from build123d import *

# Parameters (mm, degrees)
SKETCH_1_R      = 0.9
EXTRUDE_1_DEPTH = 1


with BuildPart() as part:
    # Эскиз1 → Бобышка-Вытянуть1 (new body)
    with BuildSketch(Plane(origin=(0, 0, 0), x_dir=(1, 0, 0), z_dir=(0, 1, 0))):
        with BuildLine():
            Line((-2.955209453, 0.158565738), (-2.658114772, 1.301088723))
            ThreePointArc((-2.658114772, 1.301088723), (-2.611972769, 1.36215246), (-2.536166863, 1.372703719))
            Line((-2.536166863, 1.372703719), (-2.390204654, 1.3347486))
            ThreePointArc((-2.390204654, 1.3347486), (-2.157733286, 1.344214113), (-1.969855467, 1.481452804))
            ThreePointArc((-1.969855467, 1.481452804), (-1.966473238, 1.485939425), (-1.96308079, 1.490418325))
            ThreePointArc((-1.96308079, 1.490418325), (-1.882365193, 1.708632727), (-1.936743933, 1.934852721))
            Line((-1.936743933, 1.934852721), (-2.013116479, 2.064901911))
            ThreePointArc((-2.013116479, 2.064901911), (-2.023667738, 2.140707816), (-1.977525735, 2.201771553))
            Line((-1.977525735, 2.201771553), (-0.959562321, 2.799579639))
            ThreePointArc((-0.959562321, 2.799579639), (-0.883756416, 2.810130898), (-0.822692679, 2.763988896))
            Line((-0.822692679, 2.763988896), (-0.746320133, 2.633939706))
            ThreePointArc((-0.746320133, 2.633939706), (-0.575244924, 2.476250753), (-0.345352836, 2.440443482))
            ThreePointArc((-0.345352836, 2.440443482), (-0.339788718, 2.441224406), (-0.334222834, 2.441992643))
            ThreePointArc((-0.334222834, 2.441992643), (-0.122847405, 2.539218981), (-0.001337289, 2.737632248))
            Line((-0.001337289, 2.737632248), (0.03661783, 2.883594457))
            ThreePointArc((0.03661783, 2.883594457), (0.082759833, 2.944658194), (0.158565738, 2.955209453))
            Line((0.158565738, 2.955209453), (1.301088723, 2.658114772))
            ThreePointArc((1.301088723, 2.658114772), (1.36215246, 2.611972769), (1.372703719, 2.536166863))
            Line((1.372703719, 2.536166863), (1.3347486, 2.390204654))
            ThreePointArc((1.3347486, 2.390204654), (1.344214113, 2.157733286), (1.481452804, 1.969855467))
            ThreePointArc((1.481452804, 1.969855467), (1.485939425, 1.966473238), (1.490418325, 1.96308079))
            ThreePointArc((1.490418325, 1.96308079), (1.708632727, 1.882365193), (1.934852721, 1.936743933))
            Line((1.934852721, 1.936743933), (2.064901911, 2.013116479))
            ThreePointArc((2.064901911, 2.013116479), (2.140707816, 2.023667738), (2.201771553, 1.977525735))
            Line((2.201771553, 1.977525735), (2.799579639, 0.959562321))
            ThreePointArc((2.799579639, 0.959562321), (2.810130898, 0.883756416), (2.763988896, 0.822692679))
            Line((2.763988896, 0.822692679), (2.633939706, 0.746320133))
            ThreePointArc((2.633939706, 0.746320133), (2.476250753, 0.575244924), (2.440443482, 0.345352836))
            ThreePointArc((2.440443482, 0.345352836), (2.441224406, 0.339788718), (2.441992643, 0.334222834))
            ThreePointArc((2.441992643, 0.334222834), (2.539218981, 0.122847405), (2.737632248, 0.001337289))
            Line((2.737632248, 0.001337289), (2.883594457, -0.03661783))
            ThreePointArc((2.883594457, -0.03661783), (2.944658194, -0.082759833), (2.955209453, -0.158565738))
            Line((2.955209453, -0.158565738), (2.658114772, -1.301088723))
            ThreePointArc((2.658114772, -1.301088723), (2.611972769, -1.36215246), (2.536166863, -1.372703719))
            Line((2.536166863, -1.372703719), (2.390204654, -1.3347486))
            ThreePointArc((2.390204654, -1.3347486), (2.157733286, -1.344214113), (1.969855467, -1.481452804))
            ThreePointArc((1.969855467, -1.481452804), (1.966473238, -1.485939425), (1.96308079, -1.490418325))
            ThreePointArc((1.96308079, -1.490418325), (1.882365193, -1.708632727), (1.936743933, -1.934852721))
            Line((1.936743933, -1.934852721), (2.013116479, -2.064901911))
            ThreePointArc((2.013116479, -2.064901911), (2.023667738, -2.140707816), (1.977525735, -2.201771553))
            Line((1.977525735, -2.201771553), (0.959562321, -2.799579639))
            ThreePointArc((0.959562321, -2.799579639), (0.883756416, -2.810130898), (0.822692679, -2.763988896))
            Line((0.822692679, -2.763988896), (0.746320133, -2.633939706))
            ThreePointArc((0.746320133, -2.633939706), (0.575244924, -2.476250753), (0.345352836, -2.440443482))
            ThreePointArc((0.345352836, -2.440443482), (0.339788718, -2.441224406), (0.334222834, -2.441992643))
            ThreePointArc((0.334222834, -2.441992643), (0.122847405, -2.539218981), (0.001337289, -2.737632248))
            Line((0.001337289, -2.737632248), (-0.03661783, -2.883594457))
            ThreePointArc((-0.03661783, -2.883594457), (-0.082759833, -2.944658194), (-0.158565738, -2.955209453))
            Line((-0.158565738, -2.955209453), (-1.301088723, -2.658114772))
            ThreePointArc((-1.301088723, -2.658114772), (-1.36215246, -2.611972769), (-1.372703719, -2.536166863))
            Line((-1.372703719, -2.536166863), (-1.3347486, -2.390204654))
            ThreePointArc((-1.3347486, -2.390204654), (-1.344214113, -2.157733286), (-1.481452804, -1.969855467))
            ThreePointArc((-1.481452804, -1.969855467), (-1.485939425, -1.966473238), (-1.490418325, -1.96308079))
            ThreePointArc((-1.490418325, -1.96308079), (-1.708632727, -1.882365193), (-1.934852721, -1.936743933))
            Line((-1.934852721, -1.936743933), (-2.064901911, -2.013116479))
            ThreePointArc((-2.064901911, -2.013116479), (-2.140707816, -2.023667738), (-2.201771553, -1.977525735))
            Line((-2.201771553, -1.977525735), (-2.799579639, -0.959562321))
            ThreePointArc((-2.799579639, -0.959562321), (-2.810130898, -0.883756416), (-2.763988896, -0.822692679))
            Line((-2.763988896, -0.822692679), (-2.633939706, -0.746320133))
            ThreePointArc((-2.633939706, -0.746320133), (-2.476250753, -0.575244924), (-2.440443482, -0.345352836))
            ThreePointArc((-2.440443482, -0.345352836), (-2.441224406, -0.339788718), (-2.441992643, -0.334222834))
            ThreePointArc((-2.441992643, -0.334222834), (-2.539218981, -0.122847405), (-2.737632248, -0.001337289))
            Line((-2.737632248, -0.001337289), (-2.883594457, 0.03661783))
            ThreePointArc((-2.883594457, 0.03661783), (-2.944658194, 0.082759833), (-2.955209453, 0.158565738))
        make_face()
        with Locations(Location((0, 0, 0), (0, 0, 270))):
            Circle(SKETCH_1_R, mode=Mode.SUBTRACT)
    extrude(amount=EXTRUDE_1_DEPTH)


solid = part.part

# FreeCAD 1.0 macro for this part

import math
import FreeCAD as App
import Part
import Sketcher

doc = App.newDocument("Part")
body = doc.addObject("PartDesign::Body", "Body")

sketch1 = body.newObject("Sketcher::SketchObject", "Sketch")
sketch1.AttachmentSupport = (doc.getObject("XZ_Plane"), [""])
sketch1.MapMode = "FlatFace"
sketch1.addGeometry(Part.LineSegment(App.Vector(-2.658, -1.301, 0), App.Vector(-2.955, -0.159, 0)), False)
sketch1.addGeometry(Part.ArcOfCircle(Part.Circle(App.Vector(-2.858, -0.133, 0), App.Vector(0, 0, 1), 0.1), math.radians(105), math.radians(195)), False)
sketch1.addGeometry(Part.LineSegment(App.Vector(-2.884, -0.037, 0), App.Vector(-2.738, 0.001, 0)), False)
sketch1.addGeometry(Part.ArcOfCircle(Part.Circle(App.Vector(-2.838, 0.388, 0), App.Vector(0, 0, 1), 0.4), math.radians(-75), math.radians(-8)), False)
sketch1.addGeometry(Part.ArcOfCircle(Part.Circle(App.Vector(0, 0, 0), App.Vector(0, 0, 1), 2.465), math.radians(171.95), math.radians(172.21)), False)
sketch1.addGeometry(Part.ArcOfCircle(Part.Circle(App.Vector(-2.836, 0.401, 0), App.Vector(0, 0, 1), 0.4), math.radians(-8), math.radians(60)), False)
sketch1.addGeometry(Part.LineSegment(App.Vector(-2.634, 0.746, 0), App.Vector(-2.764, 0.823, 0)), False)
sketch1.addGeometry(Part.ArcOfCircle(Part.Circle(App.Vector(-2.713, 0.909, 0), App.Vector(0, 0, 1), 0.1), math.radians(150), math.radians(240)), False)
sketch1.addGeometry(Part.LineSegment(App.Vector(-2.8, 0.96, 0), App.Vector(-2.202, 1.978, 0)), False)
sketch1.addGeometry(Part.ArcOfCircle(Part.Circle(App.Vector(-2.116, 1.927, 0), App.Vector(0, 0, 1), 0.1), math.radians(60), math.radians(150)), False)
sketch1.addGeometry(Part.LineSegment(App.Vector(-2.065, 2.013, 0), App.Vector(-1.935, 1.937, 0)), False)
sketch1.addGeometry(Part.ArcOfCircle(Part.Circle(App.Vector(-1.732, 2.282, 0), App.Vector(0, 0, 1), 0.4), math.radians(-120), math.radians(-53)), False)
sketch1.addGeometry(Part.ArcOfCircle(Part.Circle(App.Vector(0, 0, 0), App.Vector(0, 0, 1), 2.465), math.radians(126.95), math.radians(127.21)), False)
sketch1.addGeometry(Part.ArcOfCircle(Part.Circle(App.Vector(-1.722, 2.29, 0), App.Vector(0, 0, 1), 0.4), math.radians(-53), math.radians(15)), False)
sketch1.addGeometry(Part.LineSegment(App.Vector(-1.335, 2.39, 0), App.Vector(-1.373, 2.536, 0)), False)
sketch1.addGeometry(Part.ArcOfCircle(Part.Circle(App.Vector(-1.276, 2.561, 0), App.Vector(0, 0, 1), 0.1), math.radians(105), math.radians(195)), False)
sketch1.addGeometry(Part.LineSegment(App.Vector(-1.301, 2.658, 0), App.Vector(-0.159, 2.955, 0)), False)
sketch1.addGeometry(Part.ArcOfCircle(Part.Circle(App.Vector(-0.133, 2.858, 0), App.Vector(0, 0, 1), 0.1), math.radians(15), math.radians(105)), False)
sketch1.addGeometry(Part.LineSegment(App.Vector(-0.037, 2.884, 0), App.Vector(0.001, 2.738, 0)), False)
sketch1.addGeometry(Part.ArcOfCircle(Part.Circle(App.Vector(0.388, 2.838, 0), App.Vector(0, 0, 1), 0.4), math.radians(-165), math.radians(-98)), False)
sketch1.addGeometry(Part.ArcOfCircle(Part.Circle(App.Vector(0, 0, 0), App.Vector(0, 0, 1), 2.465), math.radians(81.95), math.radians(82.21)), False)
sketch1.addGeometry(Part.ArcOfCircle(Part.Circle(App.Vector(0.401, 2.836, 0), App.Vector(0, 0, 1), 0.4), math.radians(-98), math.radians(-30)), False)
sketch1.addGeometry(Part.LineSegment(App.Vector(0.746, 2.634, 0), App.Vector(0.823, 2.764, 0)), False)
sketch1.addGeometry(Part.ArcOfCircle(Part.Circle(App.Vector(0.909, 2.713, 0), App.Vector(0, 0, 1), 0.1), math.radians(60), math.radians(150)), False)
sketch1.addGeometry(Part.LineSegment(App.Vector(0.96, 2.8, 0), App.Vector(1.978, 2.202, 0)), False)
sketch1.addGeometry(Part.ArcOfCircle(Part.Circle(App.Vector(1.927, 2.116, 0), App.Vector(0, 0, 1), 0.1), math.radians(-30), math.radians(60)), False)
sketch1.addGeometry(Part.LineSegment(App.Vector(2.013, 2.065, 0), App.Vector(1.937, 1.935, 0)), False)
sketch1.addGeometry(Part.ArcOfCircle(Part.Circle(App.Vector(2.282, 1.732, 0), App.Vector(0, 0, 1), 0.4), math.radians(150), math.radians(217)), False)
sketch1.addGeometry(Part.ArcOfCircle(Part.Circle(App.Vector(0, 0, 0), App.Vector(0, 0, 1), 2.465), math.radians(36.95), math.radians(37.21)), False)
sketch1.addGeometry(Part.ArcOfCircle(Part.Circle(App.Vector(2.29, 1.722, 0), App.Vector(0, 0, 1), 0.4), math.radians(-143), math.radians(-75)), False)
sketch1.addGeometry(Part.LineSegment(App.Vector(2.39, 1.335, 0), App.Vector(2.536, 1.373, 0)), False)
sketch1.addGeometry(Part.ArcOfCircle(Part.Circle(App.Vector(2.561, 1.276, 0), App.Vector(0, 0, 1), 0.1), math.radians(15), math.radians(105)), False)
sketch1.addGeometry(Part.LineSegment(App.Vector(2.658, 1.301, 0), App.Vector(2.955, 0.159, 0)), False)
sketch1.addGeometry(Part.ArcOfCircle(Part.Circle(App.Vector(2.858, 0.133, 0), App.Vector(0, 0, 1), 0.1), math.radians(-75), math.radians(15)), False)
sketch1.addGeometry(Part.LineSegment(App.Vector(2.884, 0.037, 0), App.Vector(2.738, -0.001, 0)), False)
sketch1.addGeometry(Part.ArcOfCircle(Part.Circle(App.Vector(2.838, -0.388, 0), App.Vector(0, 0, 1), 0.4), math.radians(105), math.radians(172)), False)
sketch1.addGeometry(Part.ArcOfCircle(Part.Circle(App.Vector(0, 0, 0), App.Vector(0, 0, 1), 2.465), math.radians(-8.05), math.radians(-7.79)), False)
sketch1.addGeometry(Part.ArcOfCircle(Part.Circle(App.Vector(2.836, -0.401, 0), App.Vector(0, 0, 1), 0.4), math.radians(172), math.radians(240)), False)
sketch1.addGeometry(Part.LineSegment(App.Vector(2.634, -0.746, 0), App.Vector(2.764, -0.823, 0)), False)
sketch1.addGeometry(Part.ArcOfCircle(Part.Circle(App.Vector(2.713, -0.909, 0), App.Vector(0, 0, 1), 0.1), math.radians(-30), math.radians(60)), False)
sketch1.addGeometry(Part.LineSegment(App.Vector(2.8, -0.96, 0), App.Vector(2.202, -1.978, 0)), False)
sketch1.addGeometry(Part.ArcOfCircle(Part.Circle(App.Vector(2.116, -1.927, 0), App.Vector(0, 0, 1), 0.1), math.radians(-120), math.radians(-30)), False)
sketch1.addGeometry(Part.LineSegment(App.Vector(2.065, -2.013, 0), App.Vector(1.935, -1.937, 0)), False)
sketch1.addGeometry(Part.ArcOfCircle(Part.Circle(App.Vector(1.732, -2.282, 0), App.Vector(0, 0, 1), 0.4), math.radians(60), math.radians(127)), False)
sketch1.addGeometry(Part.ArcOfCircle(Part.Circle(App.Vector(0, 0, 0), App.Vector(0, 0, 1), 2.465), math.radians(-53.05), math.radians(-52.79)), False)
sketch1.addGeometry(Part.ArcOfCircle(Part.Circle(App.Vector(1.722, -2.29, 0), App.Vector(0, 0, 1), 0.4), math.radians(127), math.radians(195)), False)
sketch1.addGeometry(Part.LineSegment(App.Vector(1.335, -2.39, 0), App.Vector(1.373, -2.536, 0)), False)
sketch1.addGeometry(Part.ArcOfCircle(Part.Circle(App.Vector(1.276, -2.561, 0), App.Vector(0, 0, 1), 0.1), math.radians(-75), math.radians(15)), False)
sketch1.addGeometry(Part.LineSegment(App.Vector(1.301, -2.658, 0), App.Vector(0.159, -2.955, 0)), False)
sketch1.addGeometry(Part.ArcOfCircle(Part.Circle(App.Vector(0.133, -2.858, 0), App.Vector(0, 0, 1), 0.1), math.radians(-165), math.radians(-75)), False)
sketch1.addGeometry(Part.LineSegment(App.Vector(0.037, -2.884, 0), App.Vector(-0.001, -2.738, 0)), False)
sketch1.addGeometry(Part.ArcOfCircle(Part.Circle(App.Vector(-0.388, -2.838, 0), App.Vector(0, 0, 1), 0.4), math.radians(15), math.radians(82)), False)
sketch1.addGeometry(Part.ArcOfCircle(Part.Circle(App.Vector(0, 0, 0), App.Vector(0, 0, 1), 2.465), math.radians(-98.05), math.radians(-97.79)), False)
sketch1.addGeometry(Part.ArcOfCircle(Part.Circle(App.Vector(-0.401, -2.836, 0), App.Vector(0, 0, 1), 0.4), math.radians(82), math.radians(150)), False)
sketch1.addGeometry(Part.LineSegment(App.Vector(-0.746, -2.634, 0), App.Vector(-0.823, -2.764, 0)), False)
sketch1.addGeometry(Part.ArcOfCircle(Part.Circle(App.Vector(-0.909, -2.713, 0), App.Vector(0, 0, 1), 0.1), math.radians(-120), math.radians(-30)), False)
sketch1.addGeometry(Part.LineSegment(App.Vector(-0.96, -2.8, 0), App.Vector(-1.978, -2.202, 0)), False)
sketch1.addGeometry(Part.ArcOfCircle(Part.Circle(App.Vector(-1.927, -2.116, 0), App.Vector(0, 0, 1), 0.1), math.radians(150), math.radians(240)), False)
sketch1.addGeometry(Part.LineSegment(App.Vector(-2.013, -2.065, 0), App.Vector(-1.937, -1.935, 0)), False)
sketch1.addGeometry(Part.ArcOfCircle(Part.Circle(App.Vector(-2.282, -1.732, 0), App.Vector(0, 0, 1), 0.4), math.radians(-30), math.radians(37)), False)
sketch1.addGeometry(Part.ArcOfCircle(Part.Circle(App.Vector(0, 0, 0), App.Vector(0, 0, 1), 2.465), math.radians(-143.05), math.radians(-142.79)), False)
sketch1.addGeometry(Part.ArcOfCircle(Part.Circle(App.Vector(-2.29, -1.722, 0), App.Vector(0, 0, 1), 0.4), math.radians(37), math.radians(105)), False)
sketch1.addGeometry(Part.LineSegment(App.Vector(-2.39, -1.335, 0), App.Vector(-2.536, -1.373, 0)), False)
sketch1.addGeometry(Part.ArcOfCircle(Part.Circle(App.Vector(-2.561, -1.276, 0), App.Vector(0, 0, 1), 0.1), math.radians(-165), math.radians(-75)), False)
sketch1.addGeometry(Part.Circle(App.Vector(0, 0, 0), App.Vector(0, 0, 1), 0.9), False)
sketch1.addConstraint(Sketcher.Constraint("Tangent", 0, 2, 1, 2))
sketch1.addConstraint(Sketcher.Constraint("Tangent", 1, 1, 2, 1))
sketch1.addConstraint(Sketcher.Constraint("Tangent", 2, 2, 3, 1))
sketch1.addConstraint(Sketcher.Constraint("Tangent", 3, 2, 4, 2))
sketch1.addConstraint(Sketcher.Constraint("Tangent", 4, 1, 5, 1))
sketch1.addConstraint(Sketcher.Constraint("Tangent", 5, 2, 6, 1))
sketch1.addConstraint(Sketcher.Constraint("Tangent", 6, 2, 7, 2))
sketch1.addConstraint(Sketcher.Constraint("Tangent", 7, 1, 8, 1))
sketch1.addConstraint(Sketcher.Constraint("Tangent", 8, 2, 9, 2))
sketch1.addConstraint(Sketcher.Constraint("Tangent", 9, 1, 10, 1))
sketch1.addConstraint(Sketcher.Constraint("Tangent", 10, 2, 11, 1))
sketch1.addConstraint(Sketcher.Constraint("Tangent", 11, 2, 12, 2))
sketch1.addConstraint(Sketcher.Constraint("Tangent", 12, 1, 13, 1))
sketch1.addConstraint(Sketcher.Constraint("Tangent", 13, 2, 14, 1))
sketch1.addConstraint(Sketcher.Constraint("Tangent", 14, 2, 15, 2))
sketch1.addConstraint(Sketcher.Constraint("Tangent", 15, 1, 16, 1))
sketch1.addConstraint(Sketcher.Constraint("Tangent", 16, 2, 17, 2))
sketch1.addConstraint(Sketcher.Constraint("Tangent", 17, 1, 18, 1))
sketch1.addConstraint(Sketcher.Constraint("Tangent", 18, 2, 19, 1))
sketch1.addConstraint(Sketcher.Constraint("Tangent", 19, 2, 20, 2))
sketch1.addConstraint(Sketcher.Constraint("Tangent", 20, 1, 21, 1))
sketch1.addConstraint(Sketcher.Constraint("Tangent", 21, 2, 22, 1))
sketch1.addConstraint(Sketcher.Constraint("Tangent", 22, 2, 23, 2))
sketch1.addConstraint(Sketcher.Constraint("Tangent", 23, 1, 24, 1))
sketch1.addConstraint(Sketcher.Constraint("Tangent", 24, 2, 25, 2))
sketch1.addConstraint(Sketcher.Constraint("Tangent", 25, 1, 26, 1))
sketch1.addConstraint(Sketcher.Constraint("Tangent", 26, 2, 27, 1))
sketch1.addConstraint(Sketcher.Constraint("Tangent", 27, 2, 28, 2))
sketch1.addConstraint(Sketcher.Constraint("Tangent", 28, 1, 29, 1))
sketch1.addConstraint(Sketcher.Constraint("Tangent", 29, 2, 30, 1))
sketch1.addConstraint(Sketcher.Constraint("Tangent", 30, 2, 31, 2))
sketch1.addConstraint(Sketcher.Constraint("Tangent", 31, 1, 32, 1))
sketch1.addConstraint(Sketcher.Constraint("Tangent", 32, 2, 33, 2))
sketch1.addConstraint(Sketcher.Constraint("Tangent", 33, 1, 34, 1))
sketch1.addConstraint(Sketcher.Constraint("Tangent", 34, 2, 35, 1))
sketch1.addConstraint(Sketcher.Constraint("Tangent", 35, 2, 36, 2))
sketch1.addConstraint(Sketcher.Constraint("Tangent", 36, 1, 37, 1))
sketch1.addConstraint(Sketcher.Constraint("Tangent", 37, 2, 38, 1))
sketch1.addConstraint(Sketcher.Constraint("Tangent", 38, 2, 39, 2))
sketch1.addConstraint(Sketcher.Constraint("Tangent", 39, 1, 40, 1))
sketch1.addConstraint(Sketcher.Constraint("Tangent", 40, 2, 41, 2))
sketch1.addConstraint(Sketcher.Constraint("Tangent", 41, 1, 42, 1))
sketch1.addConstraint(Sketcher.Constraint("Tangent", 42, 2, 43, 1))
sketch1.addConstraint(Sketcher.Constraint("Tangent", 43, 2, 44, 2))
sketch1.addConstraint(Sketcher.Constraint("Tangent", 44, 1, 45, 1))
sketch1.addConstraint(Sketcher.Constraint("Tangent", 45, 2, 46, 1))
sketch1.addConstraint(Sketcher.Constraint("Tangent", 46, 2, 47, 2))
sketch1.addConstraint(Sketcher.Constraint("Tangent", 47, 1, 48, 1))
sketch1.addConstraint(Sketcher.Constraint("Tangent", 48, 2, 49, 2))
sketch1.addConstraint(Sketcher.Constraint("Tangent", 49, 1, 50, 1))
sketch1.addConstraint(Sketcher.Constraint("Tangent", 50, 2, 51, 1))
sketch1.addConstraint(Sketcher.Constraint("Tangent", 51, 2, 52, 2))
sketch1.addConstraint(Sketcher.Constraint("Tangent", 52, 1, 53, 1))
sketch1.addConstraint(Sketcher.Constraint("Tangent", 53, 2, 54, 1))
sketch1.addConstraint(Sketcher.Constraint("Tangent", 54, 2, 55, 2))
sketch1.addConstraint(Sketcher.Constraint("Tangent", 55, 1, 56, 1))
sketch1.addConstraint(Sketcher.Constraint("Tangent", 56, 2, 57, 2))
sketch1.addConstraint(Sketcher.Constraint("Tangent", 57, 1, 58, 1))
sketch1.addConstraint(Sketcher.Constraint("Tangent", 58, 2, 59, 1))
sketch1.addConstraint(Sketcher.Constraint("Tangent", 59, 2, 60, 2))
sketch1.addConstraint(Sketcher.Constraint("Tangent", 60, 1, 61, 1))
sketch1.addConstraint(Sketcher.Constraint("Tangent", 61, 2, 62, 1))
sketch1.addConstraint(Sketcher.Constraint("Tangent", 62, 2, 63, 2))
sketch1.addConstraint(Sketcher.Constraint("Tangent", 63, 1, 0, 1))
sketch1.addConstraint(Sketcher.Constraint("Coincident", 64, 3, -1, 1))
sketch1.addConstraint(Sketcher.Constraint("Equal", 3, 5))
sketch1.addConstraint(Sketcher.Constraint("Equal", 1, 7))
sketch1.addConstraint(Sketcher.Constraint("Equal", 7, 9))
sketch1.addConstraint(Sketcher.Constraint("Equal", 5, 11))
sketch1.addConstraint(Sketcher.Constraint("Equal", 11, 13))
sketch1.addConstraint(Sketcher.Constraint("Equal", 9, 15))
sketch1.addConstraint(Sketcher.Constraint("Equal", 15, 17))
sketch1.addConstraint(Sketcher.Constraint("Equal", 13, 19))
sketch1.addConstraint(Sketcher.Constraint("Equal", 4, 20))
sketch1.addConstraint(Sketcher.Constraint("Equal", 19, 21))
sketch1.addConstraint(Sketcher.Constraint("Equal", 17, 23))
sketch1.addConstraint(Sketcher.Constraint("Equal", 23, 25))
sketch1.addConstraint(Sketcher.Constraint("Equal", 21, 27))
sketch1.addConstraint(Sketcher.Constraint("Equal", 12, 28))
sketch1.addConstraint(Sketcher.Constraint("Equal", 27, 29))
sketch1.addConstraint(Sketcher.Constraint("Equal", 25, 31))
sketch1.addConstraint(Sketcher.Constraint("Equal", 31, 33))
sketch1.addConstraint(Sketcher.Constraint("Equal", 29, 35))
sketch1.addConstraint(Sketcher.Constraint("Equal", 20, 36))
sketch1.addConstraint(Sketcher.Constraint("Equal", 35, 37))
sketch1.addConstraint(Sketcher.Constraint("Equal", 33, 39))
sketch1.addConstraint(Sketcher.Constraint("Equal", 39, 41))
sketch1.addConstraint(Sketcher.Constraint("Equal", 37, 43))
sketch1.addConstraint(Sketcher.Constraint("Equal", 28, 44))
sketch1.addConstraint(Sketcher.Constraint("Equal", 43, 45))
sketch1.addConstraint(Sketcher.Constraint("Equal", 41, 47))
sketch1.addConstraint(Sketcher.Constraint("Equal", 47, 49))
sketch1.addConstraint(Sketcher.Constraint("Equal", 45, 51))
sketch1.addConstraint(Sketcher.Constraint("Equal", 36, 52))
sketch1.addConstraint(Sketcher.Constraint("Equal", 51, 53))
sketch1.addConstraint(Sketcher.Constraint("Equal", 49, 55))
sketch1.addConstraint(Sketcher.Constraint("Equal", 55, 57))
sketch1.addConstraint(Sketcher.Constraint("Equal", 53, 59))
sketch1.addConstraint(Sketcher.Constraint("Equal", 44, 60))
sketch1.addConstraint(Sketcher.Constraint("Equal", 59, 61))
sketch1.addConstraint(Sketcher.Constraint("Equal", 57, 63))
sketch1.addConstraint(Sketcher.Constraint("Symmetric", 1, 3, 33, 3, -1, 1))
sketch1.addConstraint(Sketcher.Constraint("Symmetric", 3, 3, 35, 3, -1, 1))
sketch1.addConstraint(Sketcher.Constraint("Symmetric", 5, 3, 37, 3, -1, 1))
sketch1.addConstraint(Sketcher.Constraint("Symmetric", 7, 3, 39, 3, -1, 1))
sketch1.addConstraint(Sketcher.Constraint("Symmetric", 9, 3, 41, 3, -1, 1))
sketch1.addConstraint(Sketcher.Constraint("Symmetric", 11, 3, 43, 3, -1, 1))
sketch1.addConstraint(Sketcher.Constraint("Symmetric", 13, 3, 45, 3, -1, 1))
sketch1.addConstraint(Sketcher.Constraint("Symmetric", 15, 3, 47, 3, -1, 1))
sketch1.addConstraint(Sketcher.Constraint("Symmetric", 17, 3, 49, 3, -1, 1))
sketch1.addConstraint(Sketcher.Constraint("Symmetric", 19, 3, 51, 3, -1, 1))
sketch1.addConstraint(Sketcher.Constraint("Symmetric", 21, 3, 53, 3, -1, 1))
sketch1.addConstraint(Sketcher.Constraint("Symmetric", 23, 3, 55, 3, -1, 1))
sketch1.addConstraint(Sketcher.Constraint("Symmetric", 25, 3, 57, 3, -1, 1))
sketch1.addConstraint(Sketcher.Constraint("Symmetric", 27, 3, 59, 3, -1, 1))
sketch1.addConstraint(Sketcher.Constraint("Symmetric", 29, 3, 61, 3, -1, 1))
sketch1.addConstraint(Sketcher.Constraint("Symmetric", 31, 3, 63, 3, -1, 1))
sketch1.addConstraint(Sketcher.Constraint("Perpendicular", 0, 2))
sketch1.addConstraint(Sketcher.Constraint("Perpendicular", 6, 8))
sketch1.addConstraint(Sketcher.Constraint("Perpendicular", 8, 10))
sketch1.addConstraint(Sketcher.Constraint("Perpendicular", 2, 14))
sketch1.addConstraint(Sketcher.Constraint("Perpendicular", 14, 16))
sketch1.addConstraint(Sketcher.Constraint("Perpendicular", 16, 18))
sketch1.addConstraint(Sketcher.Constraint("Perpendicular", 10, 22))
sketch1.addConstraint(Sketcher.Constraint("Perpendicular", 22, 24))
sketch1.addConstraint(Sketcher.Constraint("Perpendicular", 24, 26))
sketch1.addConstraint(Sketcher.Constraint("Perpendicular", 18, 30))
sketch1.addConstraint(Sketcher.Constraint("Equal", 2, 6))
sketch1.addConstraint(Sketcher.Constraint("Equal", 0, 8))
sketch1.addConstraint(Sketcher.Constraint("Equal", 6, 10))
sketch1.addConstraint(Sketcher.Constraint("Equal", 10, 14))
sketch1.addConstraint(Sketcher.Constraint("Equal", 8, 16))
sketch1.addConstraint(Sketcher.Constraint("Equal", 14, 18))
sketch1.addConstraint(Sketcher.Constraint("Equal", 18, 22))
sketch1.addConstraint(Sketcher.Constraint("Equal", 16, 24))
sketch1.addConstraint(Sketcher.Constraint("Equal", 22, 26))
sketch1.addConstraint(Sketcher.Constraint("Equal", 26, 30))
sketch1.addConstraint(Sketcher.Constraint("Diameter", 64, 1.8))
sketch1.addConstraint(Sketcher.Constraint("Radius", 1, 0.1))
sketch1.addConstraint(Sketcher.Constraint("Radius", 3, 0.4))
sketch1.addConstraint(Sketcher.Constraint("Radius", 12, 2.46483))
sketch1.addConstraint(Sketcher.Constraint("Radius", 4, 2.464553))
sketch1.addConstraint(Sketcher.Constraint("DistanceY", 1, 3, -1, 1, 0.133399))
sketch1.addConstraint(Sketcher.Constraint("DistanceX", 3, 3, -1, 1, 2.838298))
sketch1.addConstraint(Sketcher.Constraint("DistanceY", -1, 1, 5, 3, 0.401399))
sketch1.addConstraint(Sketcher.Constraint("DistanceX", 17, 3, -1, 1, 0.133399))
sketch1.addConstraint(Sketcher.Constraint("DistanceY", -1, 1, 19, 3, 2.838298))
sketch1.addConstraint(Sketcher.Constraint("DistanceX", -1, 1, 21, 3, 0.401399))
sketch1.addConstraint(Sketcher.Constraint("DistanceX", 9, 1, -1, 1, 2.064902))
sketch1.addConstraint(Sketcher.Constraint("DistanceY", -1, 1, 25, 1, 2.064902))
sketch1.addConstraint(Sketcher.Constraint("Distance", 0, 1.180519))
sketch1.addConstraint(Sketcher.Constraint("DistanceX", 1, 3, -1, 1, 2.858428))
sketch1.addConstraint(Sketcher.Constraint("DistanceY", -1, 1, 13, 3, 2.289539))
sketch1.addConstraint(Sketcher.Constraint("DistanceX", 11, 2, -1, 1, 1.490418))
pad1 = body.newObject("PartDesign::Pad", "Pad")
pad1.Profile = sketch1
pad1.Length = 1
pad1.Reversed = True

doc.recompute()
